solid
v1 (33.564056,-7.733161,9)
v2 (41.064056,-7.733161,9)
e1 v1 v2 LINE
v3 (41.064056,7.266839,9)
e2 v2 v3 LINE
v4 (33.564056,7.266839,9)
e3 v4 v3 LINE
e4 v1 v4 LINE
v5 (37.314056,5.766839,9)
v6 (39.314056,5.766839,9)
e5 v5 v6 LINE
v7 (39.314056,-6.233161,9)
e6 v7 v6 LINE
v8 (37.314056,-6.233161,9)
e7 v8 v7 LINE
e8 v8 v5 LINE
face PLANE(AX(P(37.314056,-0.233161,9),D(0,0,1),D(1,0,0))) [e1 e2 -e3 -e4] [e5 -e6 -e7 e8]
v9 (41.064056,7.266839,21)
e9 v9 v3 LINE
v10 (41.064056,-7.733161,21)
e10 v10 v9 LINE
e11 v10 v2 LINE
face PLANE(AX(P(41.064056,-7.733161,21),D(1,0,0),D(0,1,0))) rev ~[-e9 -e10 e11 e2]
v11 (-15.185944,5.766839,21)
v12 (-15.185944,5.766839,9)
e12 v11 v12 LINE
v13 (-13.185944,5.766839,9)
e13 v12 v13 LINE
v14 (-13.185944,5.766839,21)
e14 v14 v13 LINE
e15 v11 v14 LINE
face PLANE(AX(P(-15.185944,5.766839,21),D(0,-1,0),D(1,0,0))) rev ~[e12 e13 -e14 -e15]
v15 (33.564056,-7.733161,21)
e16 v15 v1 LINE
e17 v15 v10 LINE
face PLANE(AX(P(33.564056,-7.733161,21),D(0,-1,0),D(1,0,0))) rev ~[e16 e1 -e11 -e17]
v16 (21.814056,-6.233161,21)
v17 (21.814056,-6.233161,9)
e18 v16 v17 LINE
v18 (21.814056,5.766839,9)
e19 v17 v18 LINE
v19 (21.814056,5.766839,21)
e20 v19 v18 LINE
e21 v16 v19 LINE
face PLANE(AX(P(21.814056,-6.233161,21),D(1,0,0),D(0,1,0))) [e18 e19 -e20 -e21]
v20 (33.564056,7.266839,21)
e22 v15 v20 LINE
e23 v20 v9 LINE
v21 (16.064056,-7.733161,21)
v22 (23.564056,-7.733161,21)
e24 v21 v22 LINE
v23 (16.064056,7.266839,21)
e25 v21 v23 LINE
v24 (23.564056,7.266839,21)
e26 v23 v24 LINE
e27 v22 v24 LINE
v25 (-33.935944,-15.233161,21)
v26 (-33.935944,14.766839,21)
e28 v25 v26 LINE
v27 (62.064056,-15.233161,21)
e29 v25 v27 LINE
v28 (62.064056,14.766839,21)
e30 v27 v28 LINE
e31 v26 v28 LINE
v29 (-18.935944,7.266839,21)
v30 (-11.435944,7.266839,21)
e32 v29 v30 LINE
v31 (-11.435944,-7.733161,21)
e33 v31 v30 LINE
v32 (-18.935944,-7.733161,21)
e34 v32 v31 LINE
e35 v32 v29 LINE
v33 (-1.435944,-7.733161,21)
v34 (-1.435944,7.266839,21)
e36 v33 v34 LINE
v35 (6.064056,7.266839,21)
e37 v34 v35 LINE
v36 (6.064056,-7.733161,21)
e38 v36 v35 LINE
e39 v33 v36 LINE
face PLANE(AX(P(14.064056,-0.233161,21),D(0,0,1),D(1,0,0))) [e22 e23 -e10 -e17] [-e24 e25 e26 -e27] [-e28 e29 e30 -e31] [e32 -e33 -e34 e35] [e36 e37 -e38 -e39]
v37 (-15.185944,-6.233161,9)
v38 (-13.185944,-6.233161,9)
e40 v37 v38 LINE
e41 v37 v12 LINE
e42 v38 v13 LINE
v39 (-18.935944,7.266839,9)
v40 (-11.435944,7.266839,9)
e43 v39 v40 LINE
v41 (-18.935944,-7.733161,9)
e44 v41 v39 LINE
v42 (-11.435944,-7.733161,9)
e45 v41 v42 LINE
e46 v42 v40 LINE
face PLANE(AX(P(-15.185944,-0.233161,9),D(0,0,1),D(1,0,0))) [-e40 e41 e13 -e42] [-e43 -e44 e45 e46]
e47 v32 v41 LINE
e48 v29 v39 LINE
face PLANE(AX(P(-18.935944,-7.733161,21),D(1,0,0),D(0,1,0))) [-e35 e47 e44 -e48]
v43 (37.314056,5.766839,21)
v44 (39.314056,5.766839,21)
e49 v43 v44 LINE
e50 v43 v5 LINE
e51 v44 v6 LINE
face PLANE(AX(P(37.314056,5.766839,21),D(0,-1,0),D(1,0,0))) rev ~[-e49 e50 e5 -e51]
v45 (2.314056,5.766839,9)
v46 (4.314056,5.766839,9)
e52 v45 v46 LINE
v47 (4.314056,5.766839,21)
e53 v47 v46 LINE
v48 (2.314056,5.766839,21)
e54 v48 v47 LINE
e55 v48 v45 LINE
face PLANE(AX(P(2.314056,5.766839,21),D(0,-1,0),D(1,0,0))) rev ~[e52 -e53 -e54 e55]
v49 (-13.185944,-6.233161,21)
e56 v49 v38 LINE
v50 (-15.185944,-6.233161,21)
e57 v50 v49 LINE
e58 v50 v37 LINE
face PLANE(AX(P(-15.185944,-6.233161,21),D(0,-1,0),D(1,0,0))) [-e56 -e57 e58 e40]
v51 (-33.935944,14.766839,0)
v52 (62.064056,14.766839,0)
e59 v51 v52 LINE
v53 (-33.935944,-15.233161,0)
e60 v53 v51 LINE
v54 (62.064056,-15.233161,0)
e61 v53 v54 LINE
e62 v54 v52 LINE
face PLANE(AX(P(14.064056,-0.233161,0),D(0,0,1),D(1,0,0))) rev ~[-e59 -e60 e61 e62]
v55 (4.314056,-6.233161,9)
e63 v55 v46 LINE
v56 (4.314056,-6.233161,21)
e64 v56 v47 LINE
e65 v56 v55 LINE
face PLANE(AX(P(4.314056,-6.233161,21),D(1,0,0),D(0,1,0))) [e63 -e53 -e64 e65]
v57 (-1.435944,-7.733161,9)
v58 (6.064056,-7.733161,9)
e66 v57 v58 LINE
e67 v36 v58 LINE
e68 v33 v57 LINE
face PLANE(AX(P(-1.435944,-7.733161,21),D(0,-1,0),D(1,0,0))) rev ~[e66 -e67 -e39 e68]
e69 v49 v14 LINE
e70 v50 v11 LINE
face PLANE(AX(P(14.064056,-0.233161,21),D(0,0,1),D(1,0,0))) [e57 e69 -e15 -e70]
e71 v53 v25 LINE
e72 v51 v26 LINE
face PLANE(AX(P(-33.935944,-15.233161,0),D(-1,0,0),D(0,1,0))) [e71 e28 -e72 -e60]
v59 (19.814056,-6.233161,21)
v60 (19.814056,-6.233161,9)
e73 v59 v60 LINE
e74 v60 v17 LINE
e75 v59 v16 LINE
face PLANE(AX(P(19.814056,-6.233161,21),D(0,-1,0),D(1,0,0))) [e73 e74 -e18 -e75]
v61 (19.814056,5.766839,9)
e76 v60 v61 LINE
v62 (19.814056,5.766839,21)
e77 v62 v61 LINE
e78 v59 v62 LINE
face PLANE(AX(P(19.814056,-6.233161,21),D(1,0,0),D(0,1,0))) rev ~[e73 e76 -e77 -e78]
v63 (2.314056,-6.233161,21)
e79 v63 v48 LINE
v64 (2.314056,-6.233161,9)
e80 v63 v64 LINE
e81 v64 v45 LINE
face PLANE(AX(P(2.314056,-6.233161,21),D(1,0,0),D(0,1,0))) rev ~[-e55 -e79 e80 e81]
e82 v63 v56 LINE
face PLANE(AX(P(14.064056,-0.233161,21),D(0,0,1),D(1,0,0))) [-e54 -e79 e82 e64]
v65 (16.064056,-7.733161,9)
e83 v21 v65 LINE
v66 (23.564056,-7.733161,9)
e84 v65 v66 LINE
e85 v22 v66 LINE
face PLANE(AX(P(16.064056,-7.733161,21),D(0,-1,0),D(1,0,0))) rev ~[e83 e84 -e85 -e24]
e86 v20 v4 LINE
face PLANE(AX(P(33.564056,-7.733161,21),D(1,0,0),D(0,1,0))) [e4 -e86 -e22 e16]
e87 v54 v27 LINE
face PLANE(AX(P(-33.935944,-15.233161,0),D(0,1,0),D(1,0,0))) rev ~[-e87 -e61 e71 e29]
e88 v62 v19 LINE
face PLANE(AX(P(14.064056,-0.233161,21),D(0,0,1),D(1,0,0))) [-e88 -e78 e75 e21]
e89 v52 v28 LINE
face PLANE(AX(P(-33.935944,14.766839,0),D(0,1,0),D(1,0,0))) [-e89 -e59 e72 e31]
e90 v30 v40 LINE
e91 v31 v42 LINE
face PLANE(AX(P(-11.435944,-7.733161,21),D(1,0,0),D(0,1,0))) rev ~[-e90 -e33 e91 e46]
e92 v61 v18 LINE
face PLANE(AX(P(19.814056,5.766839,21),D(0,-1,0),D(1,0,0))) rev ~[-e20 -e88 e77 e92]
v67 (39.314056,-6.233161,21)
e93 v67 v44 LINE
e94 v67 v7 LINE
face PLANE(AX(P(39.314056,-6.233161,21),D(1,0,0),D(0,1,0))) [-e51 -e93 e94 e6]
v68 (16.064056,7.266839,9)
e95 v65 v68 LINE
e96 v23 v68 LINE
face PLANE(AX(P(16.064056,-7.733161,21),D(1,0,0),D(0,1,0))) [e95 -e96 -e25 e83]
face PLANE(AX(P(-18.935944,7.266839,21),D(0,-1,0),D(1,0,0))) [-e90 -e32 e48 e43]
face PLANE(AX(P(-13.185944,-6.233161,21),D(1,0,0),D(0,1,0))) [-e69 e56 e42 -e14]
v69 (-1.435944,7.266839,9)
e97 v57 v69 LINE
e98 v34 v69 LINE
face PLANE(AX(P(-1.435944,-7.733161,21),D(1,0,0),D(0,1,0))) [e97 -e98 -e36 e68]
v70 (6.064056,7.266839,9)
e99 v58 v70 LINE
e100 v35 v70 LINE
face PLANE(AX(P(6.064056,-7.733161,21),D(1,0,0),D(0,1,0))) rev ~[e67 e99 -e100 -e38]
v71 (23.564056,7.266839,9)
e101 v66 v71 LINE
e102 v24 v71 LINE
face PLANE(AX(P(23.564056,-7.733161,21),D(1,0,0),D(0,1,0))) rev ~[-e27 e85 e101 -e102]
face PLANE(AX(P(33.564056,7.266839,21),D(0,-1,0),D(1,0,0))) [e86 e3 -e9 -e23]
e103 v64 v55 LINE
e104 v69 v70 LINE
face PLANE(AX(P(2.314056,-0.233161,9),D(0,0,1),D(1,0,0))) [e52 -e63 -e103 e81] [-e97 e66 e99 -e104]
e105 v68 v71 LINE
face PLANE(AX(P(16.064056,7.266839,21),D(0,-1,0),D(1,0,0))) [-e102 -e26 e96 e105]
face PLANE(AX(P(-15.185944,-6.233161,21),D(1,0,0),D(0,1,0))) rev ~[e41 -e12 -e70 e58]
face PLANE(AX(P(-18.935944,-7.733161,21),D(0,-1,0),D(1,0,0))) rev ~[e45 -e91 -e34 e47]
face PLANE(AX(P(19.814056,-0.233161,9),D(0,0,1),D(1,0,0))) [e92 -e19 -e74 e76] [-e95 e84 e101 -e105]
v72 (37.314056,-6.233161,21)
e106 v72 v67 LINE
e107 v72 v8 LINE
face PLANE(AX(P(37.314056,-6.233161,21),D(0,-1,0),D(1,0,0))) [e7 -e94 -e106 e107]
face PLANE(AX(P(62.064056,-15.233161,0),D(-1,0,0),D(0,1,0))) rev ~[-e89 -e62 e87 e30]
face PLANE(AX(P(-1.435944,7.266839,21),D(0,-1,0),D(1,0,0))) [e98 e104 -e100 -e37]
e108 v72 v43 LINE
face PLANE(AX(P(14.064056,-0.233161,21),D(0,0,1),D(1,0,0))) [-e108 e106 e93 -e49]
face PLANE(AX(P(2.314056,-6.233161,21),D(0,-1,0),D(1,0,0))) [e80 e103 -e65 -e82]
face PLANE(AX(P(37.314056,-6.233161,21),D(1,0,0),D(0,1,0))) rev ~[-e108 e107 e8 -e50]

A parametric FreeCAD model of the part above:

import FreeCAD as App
import Part
import Sketcher


def add_polygon(sketch, points):
    """Adds a closed chain of lines whose ends are joined by coincident constraints."""
    first, n = sketch.GeometryCount, len(points)
    for a, b in zip(points, points[1:] + points[:1]):
        sketch.addGeometry(Part.LineSegment(App.Vector(*a, 0), App.Vector(*b, 0)), False)
    for i in range(n):
        sketch.addConstraint(Sketcher.Constraint("Coincident", first + i, 2, first + (i + 1) % n, 1))

doc = App.newDocument("Part")
body = doc.addObject("PartDesign::Body", "Body")

sketch1 = body.newObject("Sketcher::SketchObject", "Sketch")
sketch1.AttachmentSupport = (doc.getObject("XY_Plane"), [""])
sketch1.MapMode = "FlatFace"
add_polygon(sketch1, [(-34, 15), (-34, -15), (62, -15), (62, 15)])
sketch1.addConstraint([
    Sketcher.Constraint("Vertical", 0),
    Sketcher.Constraint("Horizontal", 1),
    Sketcher.Constraint("Vertical", 2),
    Sketcher.Constraint("Horizontal", 3),
    Sketcher.Constraint("DistanceX", 1, 1, 1, 2, 96.0),
    Sketcher.Constraint("DistanceY", 0, 2, 0, 1, 30.0),
    Sketcher.Constraint("DistanceY", 0, 2, -1, 1, 15.233161),
    Sketcher.Constraint("DistanceX", 0, 2, -1, 1, 33.935944),
])
pad1 = body.newObject("PartDesign::Pad", "Pad")
pad1.Profile = sketch1
pad1.Length = 21

sketch2 = body.newObject("Sketcher::SketchObject", "Sketch001")
sketch2.AttachmentSupport = (doc.getObject("XY_Plane"), [""])
sketch2.MapMode = "FlatFace"
sketch2.AttachmentOffset = App.Placement(App.Vector(0, 0, 21), App.Rotation())
add_polygon(sketch2, [(-18.9, 7.3), (-18.9, -7.7), (-11.4, -7.7), (-11.4, 7.3)])
add_polygon(sketch2, [(-13.2, -6.2), (-15.2, -6.2), (-15.2, 5.8), (-13.2, 5.8)])
sketch2.addConstraint([
    Sketcher.Constraint("Vertical", 0),
    Sketcher.Constraint("Horizontal", 1),
    Sketcher.Constraint("Vertical", 2),
    Sketcher.Constraint("Horizontal", 3),
    Sketcher.Constraint("Horizontal", 4),
    Sketcher.Constraint("Vertical", 5),
    Sketcher.Constraint("Horizontal", 6),
    Sketcher.Constraint("Vertical", 7),
    Sketcher.Constraint("DistanceX", 4, 2, 4, 1, 2.0),
    Sketcher.Constraint("DistanceY", 0, 2, 0, 1, 15.0),
    Sketcher.Constraint("DistanceY", 5, 1, 5, 2, 12.0),
    Sketcher.Constraint("DistanceX", 1, 1, 1, 2, 7.5),
    Sketcher.Constraint("DistanceY", 1, 2, 4, 2, 1.5),
    Sketcher.Constraint("DistanceX", 4, 2, 1, 2, 3.75),
    Sketcher.Constraint("DistanceY", 0, 2, -1, 1, 7.733161),
    Sketcher.Constraint("DistanceX", 0, 2, -1, 1, 18.935944),
])
pocket1 = body.newObject("PartDesign::Pocket", "Pocket")
pocket1.Profile = sketch2
pocket1.Length = 12
doc.recompute()

linearpattern = body.newObject("PartDesign::LinearPattern", "LinearPattern")
linearpattern.Originals = [pocket1]
linearpattern.Direction = (doc.getObject("X_Axis"), [""])
linearpattern.Mode = "offset"
linearpattern.Offset = 17.5
linearpattern.Occurrences = 4
body.Tip = linearpattern

doc.recompute()
